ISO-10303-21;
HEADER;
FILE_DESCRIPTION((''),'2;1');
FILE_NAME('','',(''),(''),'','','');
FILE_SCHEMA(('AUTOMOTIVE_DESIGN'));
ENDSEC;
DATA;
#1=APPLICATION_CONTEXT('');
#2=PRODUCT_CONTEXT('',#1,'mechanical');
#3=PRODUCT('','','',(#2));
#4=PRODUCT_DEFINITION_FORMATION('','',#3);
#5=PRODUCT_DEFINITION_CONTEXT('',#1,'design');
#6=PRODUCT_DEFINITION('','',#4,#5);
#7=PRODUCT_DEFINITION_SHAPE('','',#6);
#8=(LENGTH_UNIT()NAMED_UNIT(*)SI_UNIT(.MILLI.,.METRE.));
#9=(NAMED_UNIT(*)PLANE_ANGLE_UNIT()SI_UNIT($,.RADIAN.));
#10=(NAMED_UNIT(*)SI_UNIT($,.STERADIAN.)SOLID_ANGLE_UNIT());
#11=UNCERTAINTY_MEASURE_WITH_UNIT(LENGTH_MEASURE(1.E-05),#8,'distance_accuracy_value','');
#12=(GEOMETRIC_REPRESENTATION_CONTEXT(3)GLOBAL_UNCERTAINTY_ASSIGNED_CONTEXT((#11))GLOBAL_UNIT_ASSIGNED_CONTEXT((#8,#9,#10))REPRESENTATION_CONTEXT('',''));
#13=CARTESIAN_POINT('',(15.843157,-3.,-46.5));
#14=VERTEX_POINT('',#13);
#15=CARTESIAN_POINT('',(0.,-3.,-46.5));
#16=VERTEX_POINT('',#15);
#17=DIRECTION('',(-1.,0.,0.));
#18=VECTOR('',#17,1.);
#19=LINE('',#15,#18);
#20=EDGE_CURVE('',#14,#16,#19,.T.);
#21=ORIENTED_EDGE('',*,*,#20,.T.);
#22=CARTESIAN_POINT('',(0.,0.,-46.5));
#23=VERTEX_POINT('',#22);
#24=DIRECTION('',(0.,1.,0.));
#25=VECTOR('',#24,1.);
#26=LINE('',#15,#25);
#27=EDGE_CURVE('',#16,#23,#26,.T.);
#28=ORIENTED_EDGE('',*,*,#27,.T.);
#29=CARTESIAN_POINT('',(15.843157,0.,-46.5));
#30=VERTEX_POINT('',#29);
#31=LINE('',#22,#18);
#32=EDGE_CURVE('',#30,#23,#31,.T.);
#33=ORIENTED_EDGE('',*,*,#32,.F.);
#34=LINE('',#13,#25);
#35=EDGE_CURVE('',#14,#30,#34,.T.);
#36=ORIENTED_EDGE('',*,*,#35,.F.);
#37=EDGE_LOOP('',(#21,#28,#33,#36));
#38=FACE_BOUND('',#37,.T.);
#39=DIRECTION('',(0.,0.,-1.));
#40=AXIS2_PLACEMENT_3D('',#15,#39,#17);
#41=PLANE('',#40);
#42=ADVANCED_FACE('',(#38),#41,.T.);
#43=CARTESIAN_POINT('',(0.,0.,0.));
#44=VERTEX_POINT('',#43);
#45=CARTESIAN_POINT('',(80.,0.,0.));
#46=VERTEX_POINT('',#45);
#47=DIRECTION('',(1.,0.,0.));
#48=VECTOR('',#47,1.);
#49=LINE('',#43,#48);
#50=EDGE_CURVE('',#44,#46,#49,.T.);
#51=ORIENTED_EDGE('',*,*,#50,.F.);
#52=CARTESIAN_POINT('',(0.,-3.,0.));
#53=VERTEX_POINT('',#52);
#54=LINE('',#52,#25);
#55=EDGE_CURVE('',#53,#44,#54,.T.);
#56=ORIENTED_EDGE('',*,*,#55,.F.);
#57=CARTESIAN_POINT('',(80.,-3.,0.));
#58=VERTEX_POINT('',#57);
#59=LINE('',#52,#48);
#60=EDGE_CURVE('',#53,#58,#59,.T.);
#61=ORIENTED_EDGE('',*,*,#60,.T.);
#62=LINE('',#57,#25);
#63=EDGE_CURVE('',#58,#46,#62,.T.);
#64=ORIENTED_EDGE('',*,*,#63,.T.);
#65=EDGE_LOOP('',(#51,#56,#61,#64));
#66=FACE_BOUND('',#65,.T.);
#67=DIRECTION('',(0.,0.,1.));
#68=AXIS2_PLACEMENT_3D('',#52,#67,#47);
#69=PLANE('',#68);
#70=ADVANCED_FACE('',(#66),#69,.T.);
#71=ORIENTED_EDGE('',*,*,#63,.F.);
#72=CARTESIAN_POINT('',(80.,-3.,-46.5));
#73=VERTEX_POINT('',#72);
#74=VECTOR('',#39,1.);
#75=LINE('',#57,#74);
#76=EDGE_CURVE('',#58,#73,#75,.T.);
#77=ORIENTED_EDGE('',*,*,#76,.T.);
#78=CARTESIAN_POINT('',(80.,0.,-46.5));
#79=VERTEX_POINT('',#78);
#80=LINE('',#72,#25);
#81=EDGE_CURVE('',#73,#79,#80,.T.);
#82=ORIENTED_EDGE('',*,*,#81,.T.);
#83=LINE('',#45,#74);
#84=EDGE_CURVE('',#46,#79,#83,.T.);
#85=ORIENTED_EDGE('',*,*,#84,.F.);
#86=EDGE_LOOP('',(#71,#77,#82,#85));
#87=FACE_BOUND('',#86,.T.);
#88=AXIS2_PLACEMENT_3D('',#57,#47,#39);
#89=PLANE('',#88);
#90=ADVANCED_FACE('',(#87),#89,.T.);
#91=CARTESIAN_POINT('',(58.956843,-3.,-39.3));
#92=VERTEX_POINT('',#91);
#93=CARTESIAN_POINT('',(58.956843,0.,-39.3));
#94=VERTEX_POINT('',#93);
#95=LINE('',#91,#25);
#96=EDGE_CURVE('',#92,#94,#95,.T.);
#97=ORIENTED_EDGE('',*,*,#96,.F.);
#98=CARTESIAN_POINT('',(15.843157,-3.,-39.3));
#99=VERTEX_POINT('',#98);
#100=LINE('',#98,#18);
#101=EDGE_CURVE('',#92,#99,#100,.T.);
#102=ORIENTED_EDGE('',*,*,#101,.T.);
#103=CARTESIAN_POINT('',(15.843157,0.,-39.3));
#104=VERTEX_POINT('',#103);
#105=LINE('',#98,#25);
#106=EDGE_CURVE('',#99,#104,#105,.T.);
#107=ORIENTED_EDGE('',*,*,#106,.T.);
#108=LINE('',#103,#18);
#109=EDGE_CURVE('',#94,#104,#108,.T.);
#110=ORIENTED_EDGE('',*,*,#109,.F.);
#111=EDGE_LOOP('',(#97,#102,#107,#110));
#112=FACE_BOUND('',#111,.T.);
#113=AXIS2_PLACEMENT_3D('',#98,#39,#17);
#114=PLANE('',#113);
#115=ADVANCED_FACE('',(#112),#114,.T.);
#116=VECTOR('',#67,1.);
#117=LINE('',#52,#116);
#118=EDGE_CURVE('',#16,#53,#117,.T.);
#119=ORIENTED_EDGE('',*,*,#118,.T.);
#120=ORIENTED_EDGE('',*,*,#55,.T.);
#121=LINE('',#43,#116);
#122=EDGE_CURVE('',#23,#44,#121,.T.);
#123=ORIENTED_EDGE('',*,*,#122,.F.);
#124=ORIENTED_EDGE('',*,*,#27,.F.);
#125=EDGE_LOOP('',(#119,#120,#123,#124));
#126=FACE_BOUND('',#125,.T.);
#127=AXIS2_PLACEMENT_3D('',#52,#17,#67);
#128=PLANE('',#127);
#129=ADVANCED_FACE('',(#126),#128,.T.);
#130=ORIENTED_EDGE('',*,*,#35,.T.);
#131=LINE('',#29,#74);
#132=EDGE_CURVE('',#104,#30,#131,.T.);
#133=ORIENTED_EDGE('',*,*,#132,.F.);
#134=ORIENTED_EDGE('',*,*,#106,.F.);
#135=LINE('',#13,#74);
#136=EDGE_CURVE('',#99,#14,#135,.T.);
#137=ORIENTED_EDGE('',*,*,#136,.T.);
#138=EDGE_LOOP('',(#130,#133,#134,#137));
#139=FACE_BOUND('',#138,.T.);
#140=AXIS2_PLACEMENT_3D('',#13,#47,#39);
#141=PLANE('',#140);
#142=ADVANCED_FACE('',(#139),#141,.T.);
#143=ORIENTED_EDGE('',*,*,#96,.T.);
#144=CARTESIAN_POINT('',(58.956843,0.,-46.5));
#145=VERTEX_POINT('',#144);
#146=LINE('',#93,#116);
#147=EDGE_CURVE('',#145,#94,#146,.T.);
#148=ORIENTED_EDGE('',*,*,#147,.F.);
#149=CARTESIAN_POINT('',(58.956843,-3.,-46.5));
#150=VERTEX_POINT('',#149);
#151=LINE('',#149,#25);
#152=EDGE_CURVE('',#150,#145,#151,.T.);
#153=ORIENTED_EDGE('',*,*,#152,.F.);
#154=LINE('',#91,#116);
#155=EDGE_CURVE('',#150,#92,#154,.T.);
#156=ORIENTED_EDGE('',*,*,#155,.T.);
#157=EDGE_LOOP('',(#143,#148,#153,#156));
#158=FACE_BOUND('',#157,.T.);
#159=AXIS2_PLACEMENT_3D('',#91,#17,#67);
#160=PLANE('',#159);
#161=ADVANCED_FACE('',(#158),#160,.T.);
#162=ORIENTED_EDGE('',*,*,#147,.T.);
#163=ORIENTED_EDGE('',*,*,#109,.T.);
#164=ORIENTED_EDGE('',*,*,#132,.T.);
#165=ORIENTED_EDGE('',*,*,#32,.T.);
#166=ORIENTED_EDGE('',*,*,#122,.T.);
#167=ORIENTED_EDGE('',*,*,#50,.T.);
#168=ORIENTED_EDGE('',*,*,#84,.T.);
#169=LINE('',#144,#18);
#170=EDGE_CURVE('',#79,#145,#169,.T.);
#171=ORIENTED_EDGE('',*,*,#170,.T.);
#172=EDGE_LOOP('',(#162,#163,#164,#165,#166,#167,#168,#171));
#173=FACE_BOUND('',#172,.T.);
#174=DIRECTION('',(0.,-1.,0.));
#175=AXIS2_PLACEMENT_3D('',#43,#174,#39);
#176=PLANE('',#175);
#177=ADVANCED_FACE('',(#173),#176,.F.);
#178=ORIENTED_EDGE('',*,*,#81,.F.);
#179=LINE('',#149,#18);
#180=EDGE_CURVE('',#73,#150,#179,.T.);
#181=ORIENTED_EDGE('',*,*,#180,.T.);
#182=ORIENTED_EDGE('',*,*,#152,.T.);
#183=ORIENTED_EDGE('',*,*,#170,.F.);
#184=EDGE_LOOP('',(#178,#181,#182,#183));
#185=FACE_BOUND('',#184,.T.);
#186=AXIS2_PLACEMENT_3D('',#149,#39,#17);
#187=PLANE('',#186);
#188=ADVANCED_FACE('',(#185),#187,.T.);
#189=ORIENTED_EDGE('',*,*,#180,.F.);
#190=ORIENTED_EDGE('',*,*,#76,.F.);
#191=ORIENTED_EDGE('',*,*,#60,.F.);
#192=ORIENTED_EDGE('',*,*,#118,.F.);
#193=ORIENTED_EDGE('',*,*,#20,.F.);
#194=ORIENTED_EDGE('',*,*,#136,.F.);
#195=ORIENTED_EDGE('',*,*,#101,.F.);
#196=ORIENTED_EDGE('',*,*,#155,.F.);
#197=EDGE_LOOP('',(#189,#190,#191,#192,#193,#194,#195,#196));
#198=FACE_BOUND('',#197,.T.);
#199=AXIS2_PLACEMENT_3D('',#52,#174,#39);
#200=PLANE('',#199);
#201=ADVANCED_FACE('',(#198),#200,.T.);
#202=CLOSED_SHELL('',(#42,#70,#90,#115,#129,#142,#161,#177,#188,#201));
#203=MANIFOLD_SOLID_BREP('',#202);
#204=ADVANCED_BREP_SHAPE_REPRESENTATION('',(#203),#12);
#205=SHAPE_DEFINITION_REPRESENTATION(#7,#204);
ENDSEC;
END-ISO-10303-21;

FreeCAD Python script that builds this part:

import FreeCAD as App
import Part
import Sketcher

V = App.Vector
Q = App.Units.Quantity


def add_polygon(sketch, points):
    """Adds a closed chain of lines whose ends are joined by coincident constraints."""
    first, n = sketch.GeometryCount, len(points)
    for a, b in zip(points, points[1:] + points[:1]):
        sketch.addGeometry(Part.LineSegment(App.Vector(*a, 0), App.Vector(*b, 0)), False)
    for i in range(n):
        sketch.addConstraint(Sketcher.Constraint("Coincident", first + i, 2, first + (i + 1) % n, 1))

doc = App.newDocument("Part")
body = doc.addObject("PartDesign::Body", "Body")

# Sketch on XZ plane
sketch1 = body.newObject("Sketcher::SketchObject", "Sketch")
sketch1.AttachmentSupport = (doc.getObject("XZ_Plane"), [""])
sketch1.MapMode = "FlatFace"
add_polygon(sketch1, [(16, -39), (16, -46), (0, -46), (0, 0), (80, 0), (80, -46), (59, -46), (59, -39)])  # lines 0-7
sketch1.addConstraint(Sketcher.Constraint("Vertical", 0))
sketch1.addConstraint(Sketcher.Constraint("Horizontal", 1))
sketch1.addConstraint(Sketcher.Constraint("Vertical", 2))
sketch1.addConstraint(Sketcher.Constraint("Horizontal", 3))
sketch1.addConstraint(Sketcher.Constraint("Vertical", 4))
sketch1.addConstraint(Sketcher.Constraint("Horizontal", 5))
sketch1.addConstraint(Sketcher.Constraint("Vertical", 6))
sketch1.addConstraint(Sketcher.Constraint("Horizontal", 7))
sketch1.addConstraint(Sketcher.Constraint("Coincident", 2, 2, -1, 1))
sketch1.addConstraint(Sketcher.Constraint("Horizontal", 1, 2, 4, 2))
sketch1.addConstraint(Sketcher.Constraint("DistanceX", 3, 1, 3, 2, Q("80 mm")))
sketch1.addConstraint(Sketcher.Constraint("DistanceY", 0, 2, 0, 1, Q("7.2 mm")))
sketch1.addConstraint(Sketcher.Constraint("DistanceY", 2, 1, 2, 2, Q("46.5 mm")))
sketch1.addConstraint(Sketcher.Constraint("DistanceX", 1, 2, 1, 1, Q("15.843157 mm")))
sketch1.addConstraint(Sketcher.Constraint("DistanceX", 5, 2, 5, 1, Q("21.043157 mm")))
pad1 = body.newObject("PartDesign::Pad", "Pad")
pad1.Profile = sketch1
pad1.Length = 3

doc.recompute()
